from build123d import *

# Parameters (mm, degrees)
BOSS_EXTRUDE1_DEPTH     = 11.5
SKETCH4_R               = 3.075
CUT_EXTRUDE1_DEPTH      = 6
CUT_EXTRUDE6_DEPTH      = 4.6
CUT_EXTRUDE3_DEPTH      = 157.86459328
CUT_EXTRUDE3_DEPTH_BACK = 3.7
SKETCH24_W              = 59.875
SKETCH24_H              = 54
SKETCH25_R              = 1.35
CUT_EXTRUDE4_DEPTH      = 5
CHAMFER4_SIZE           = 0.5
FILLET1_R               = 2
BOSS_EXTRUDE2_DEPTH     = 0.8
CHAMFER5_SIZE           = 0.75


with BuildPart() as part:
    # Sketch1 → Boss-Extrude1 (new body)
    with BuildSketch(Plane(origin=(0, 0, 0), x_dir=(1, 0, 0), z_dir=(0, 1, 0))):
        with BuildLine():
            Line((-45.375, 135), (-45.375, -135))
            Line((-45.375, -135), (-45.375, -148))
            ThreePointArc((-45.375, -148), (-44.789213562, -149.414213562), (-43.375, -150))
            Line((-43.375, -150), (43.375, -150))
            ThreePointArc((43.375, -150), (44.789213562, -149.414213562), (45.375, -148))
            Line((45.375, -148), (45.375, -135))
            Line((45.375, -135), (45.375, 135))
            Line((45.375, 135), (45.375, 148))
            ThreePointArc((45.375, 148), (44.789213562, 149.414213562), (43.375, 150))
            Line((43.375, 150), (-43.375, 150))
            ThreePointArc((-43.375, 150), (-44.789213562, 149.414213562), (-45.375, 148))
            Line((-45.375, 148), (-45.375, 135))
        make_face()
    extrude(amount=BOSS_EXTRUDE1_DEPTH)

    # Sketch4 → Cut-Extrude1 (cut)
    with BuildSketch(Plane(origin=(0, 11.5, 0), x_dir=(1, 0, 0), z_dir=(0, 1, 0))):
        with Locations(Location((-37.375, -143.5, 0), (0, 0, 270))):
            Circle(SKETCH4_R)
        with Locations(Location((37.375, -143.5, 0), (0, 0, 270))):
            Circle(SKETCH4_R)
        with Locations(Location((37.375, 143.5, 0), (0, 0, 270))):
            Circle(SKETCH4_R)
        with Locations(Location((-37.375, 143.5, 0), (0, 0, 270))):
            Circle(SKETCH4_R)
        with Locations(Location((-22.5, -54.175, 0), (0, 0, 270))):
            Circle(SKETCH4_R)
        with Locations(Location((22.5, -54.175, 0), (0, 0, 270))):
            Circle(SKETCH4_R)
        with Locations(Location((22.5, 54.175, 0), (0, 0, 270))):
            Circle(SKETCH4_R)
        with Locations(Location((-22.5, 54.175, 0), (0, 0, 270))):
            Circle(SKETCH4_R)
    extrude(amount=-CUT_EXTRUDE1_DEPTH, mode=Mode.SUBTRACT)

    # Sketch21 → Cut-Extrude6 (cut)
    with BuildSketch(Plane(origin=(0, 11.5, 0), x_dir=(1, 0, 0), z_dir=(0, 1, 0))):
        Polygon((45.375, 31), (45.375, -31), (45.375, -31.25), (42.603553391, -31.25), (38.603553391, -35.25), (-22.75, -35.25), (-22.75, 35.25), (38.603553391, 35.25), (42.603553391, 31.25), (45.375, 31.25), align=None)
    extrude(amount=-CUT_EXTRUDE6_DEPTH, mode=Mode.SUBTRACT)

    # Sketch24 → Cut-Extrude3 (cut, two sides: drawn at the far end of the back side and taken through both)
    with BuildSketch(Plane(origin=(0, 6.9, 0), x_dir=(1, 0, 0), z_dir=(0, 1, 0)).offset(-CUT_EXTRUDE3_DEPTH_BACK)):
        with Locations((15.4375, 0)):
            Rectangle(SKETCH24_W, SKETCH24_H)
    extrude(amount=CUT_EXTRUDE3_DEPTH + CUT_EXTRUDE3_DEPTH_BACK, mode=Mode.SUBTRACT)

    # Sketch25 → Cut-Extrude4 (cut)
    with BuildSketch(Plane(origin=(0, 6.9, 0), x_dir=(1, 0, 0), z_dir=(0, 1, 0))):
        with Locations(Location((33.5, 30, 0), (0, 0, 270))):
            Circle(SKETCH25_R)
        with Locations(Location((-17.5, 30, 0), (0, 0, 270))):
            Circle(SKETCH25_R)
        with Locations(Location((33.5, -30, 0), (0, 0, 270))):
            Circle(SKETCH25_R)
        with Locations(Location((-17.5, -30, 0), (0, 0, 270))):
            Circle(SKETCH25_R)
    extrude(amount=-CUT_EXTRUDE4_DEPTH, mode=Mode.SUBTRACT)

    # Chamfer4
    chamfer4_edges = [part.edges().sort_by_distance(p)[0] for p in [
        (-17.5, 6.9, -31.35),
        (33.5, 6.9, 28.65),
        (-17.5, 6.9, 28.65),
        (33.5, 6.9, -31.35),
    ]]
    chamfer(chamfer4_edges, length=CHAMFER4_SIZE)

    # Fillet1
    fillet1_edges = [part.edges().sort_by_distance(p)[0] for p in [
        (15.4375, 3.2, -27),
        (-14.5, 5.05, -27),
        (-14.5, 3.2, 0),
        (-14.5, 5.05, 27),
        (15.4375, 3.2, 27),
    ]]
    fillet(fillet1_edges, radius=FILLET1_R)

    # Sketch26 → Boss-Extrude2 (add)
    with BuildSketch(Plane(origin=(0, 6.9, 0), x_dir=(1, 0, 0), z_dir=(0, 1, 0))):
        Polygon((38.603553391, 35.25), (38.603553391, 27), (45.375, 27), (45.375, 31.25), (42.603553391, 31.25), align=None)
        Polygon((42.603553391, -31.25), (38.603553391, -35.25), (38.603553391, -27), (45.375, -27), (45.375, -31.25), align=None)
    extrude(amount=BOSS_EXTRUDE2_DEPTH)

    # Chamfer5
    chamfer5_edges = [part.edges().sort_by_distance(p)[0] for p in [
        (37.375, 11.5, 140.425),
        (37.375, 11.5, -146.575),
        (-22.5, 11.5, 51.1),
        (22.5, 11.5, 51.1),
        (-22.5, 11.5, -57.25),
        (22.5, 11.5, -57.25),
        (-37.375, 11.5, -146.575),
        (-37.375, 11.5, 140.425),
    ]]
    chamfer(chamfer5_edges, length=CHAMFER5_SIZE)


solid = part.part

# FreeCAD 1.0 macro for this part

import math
import FreeCAD as App
import Part
import Sketcher

V = App.Vector


def edges_at(feature, points):
    """Names of the edges that pass closest to the given points."""
    edges = feature.Shape.Edges
    near = lambda p: min(range(len(edges)), key=lambda i: edges[i].distToShape(Part.Vertex(*p))[0])
    return sorted({f"Edge{near(p) + 1}" for p in points})


def add_polygon(sketch, points):
    """Adds a closed chain of lines whose ends are joined by coincident constraints."""
    first, n = sketch.GeometryCount, len(points)
    for a, b in zip(points, points[1:] + points[:1]):
        sketch.addGeometry(Part.LineSegment(App.Vector(*a, 0), App.Vector(*b, 0)), False)
    for i in range(n):
        sketch.addConstraint(Sketcher.Constraint("Coincident", first + i, 2, first + (i + 1) % n, 1))

doc = App.newDocument("Part")
params = doc.addObject("Spreadsheet::Sheet", "Params")
for row, (alias, value) in enumerate([
    ("sketch1_radius", "2 mm"),
    ("sketch1_height", "296 mm"),
    ("sketch1_width", "86.75 mm"),
    ("pad1_length", "11.5 mm"),
    ("sketch2_diameter", "6.15 mm"),
    ("pocket1_length", "6 mm"),
    ("sketch3_height", "62.5 mm"),
    ("sketch3_height2", "70.5 mm"),
    ("pocket2_length", "4.6 mm"),
    ("sketch4_height", "54 mm"),
    ("pocket3_length", "157.864593 mm"),
    ("pocket3_length2", "3.7 mm"),
    ("sketch5_diameter", "2.7 mm"),
    ("pocket4_length", "5 mm"),
    ("chamfer_size", "0.5 mm"),
    ("fillet_radius", "2 mm"),
    ("sketch6_height", "8.25 mm"),
    ("pad2_length", "0.8 mm"),
    ("chamfer2_size", "0.75 mm"),
], start=1):
    params.set(f"A{row}", alias)
    params.set(f"B{row}", "=" + value)
    params.setAlias(f"B{row}", alias)

body = doc.addObject("PartDesign::Body", "Body")

sketch1 = body.newObject("Sketcher::SketchObject", "Sketch")
sketch1.AttachmentSupport = (doc.getObject("XZ_Plane"), [""])
sketch1.MapMode = "FlatFace"
sketch1.addGeometry(Part.ArcOfCircle(Part.Circle(V(-43.375, 148, 0), V(0, 0, 1), 2), math.radians(90), math.radians(180)), False)
sketch1.addGeometry(Part.LineSegment(V(-43.375, 150, 0), V(43.375, 150, 0)), False)
sketch1.addGeometry(Part.ArcOfCircle(Part.Circle(V(43.375, 148, 0), V(0, 0, 1), 2), math.radians(0), math.radians(90)), False)
sketch1.addGeometry(Part.LineSegment(V(45.375, 148, 0), V(45.375, -148, 0)), False)
sketch1.addGeometry(Part.ArcOfCircle(Part.Circle(V(43.375, -148, 0), V(0, 0, 1), 2), math.radians(-90), math.radians(0)), False)
sketch1.addGeometry(Part.LineSegment(V(43.375, -150, 0), V(-43.375, -150, 0)), False)
sketch1.addGeometry(Part.ArcOfCircle(Part.Circle(V(-43.375, -148, 0), V(0, 0, 1), 2), math.radians(-180), math.radians(-90)), False)
sketch1.addGeometry(Part.LineSegment(V(-45.375, -148, 0), V(-45.375, 148, 0)), False)
sketch1.addConstraint(Sketcher.Constraint("Tangent", 0, 1, 1, 1))
sketch1.addConstraint(Sketcher.Constraint("Tangent", 1, 2, 2, 2))
sketch1.addConstraint(Sketcher.Constraint("Tangent", 2, 1, 3, 1))
sketch1.addConstraint(Sketcher.Constraint("Tangent", 3, 2, 4, 2))
sketch1.addConstraint(Sketcher.Constraint("Tangent", 4, 1, 5, 1))
sketch1.addConstraint(Sketcher.Constraint("Tangent", 5, 2, 6, 2))
sketch1.addConstraint(Sketcher.Constraint("Tangent", 6, 1, 7, 1))
sketch1.addConstraint(Sketcher.Constraint("Tangent", 7, 2, 0, 2))
sketch1.addConstraint(Sketcher.Constraint("Horizontal", 1))
sketch1.addConstraint(Sketcher.Constraint("Vertical", 3))
sketch1.addConstraint(Sketcher.Constraint("Horizontal", 5))
sketch1.addConstraint(Sketcher.Constraint("Vertical", 7))
sketch1.addConstraint(Sketcher.Constraint("Equal", 0, 2))
sketch1.addConstraint(Sketcher.Constraint("Equal", 2, 4))
sketch1.addConstraint(Sketcher.Constraint("Equal", 4, 6))
sketch1.addConstraint(Sketcher.Constraint("Symmetric", 0, 3, 4, 3, -1, 1))
sketch1.addConstraint(Sketcher.Constraint("Radius", 0, 2.0))
sketch1.addConstraint(Sketcher.Constraint("DistanceY", 3, 2, 3, 1, 296.0))
sketch1.addConstraint(Sketcher.Constraint("DistanceX", 1, 1, 1, 2, 86.75))
sketch1.setExpression("Constraints[16]", "Params.sketch1_radius")
sketch1.setExpression("Constraints[17]", "Params.sketch1_height")
sketch1.setExpression("Constraints[18]", "Params.sketch1_width")
pad1 = body.newObject("PartDesign::Pad", "Pad")
pad1.Profile = sketch1
pad1.setExpression("Length", "Params.pad1_length")
pad1.Reversed = True

sketch2 = body.newObject("Sketcher::SketchObject", "Sketch001")
sketch2.AttachmentSupport = (doc.getObject("XZ_Plane"), [""])
sketch2.MapMode = "FlatFace"
sketch2.AttachmentOffset = App.Placement(V(0, 0, -11.5), App.Rotation())
sketch2.addGeometry(Part.Circle(V(-37.375, 143.5, 0), V(0, 0, 1), 3.075), False)
sketch2.addGeometry(Part.Circle(V(37.375, 143.5, 0), V(0, 0, 1), 3.075), False)
sketch2.addGeometry(Part.Circle(V(37.375, -143.5, 0), V(0, 0, 1), 3.075), False)
sketch2.addGeometry(Part.Circle(V(-37.375, -143.5, 0), V(0, 0, 1), 3.075), False)
sketch2.addGeometry(Part.Circle(V(-22.5, 54.175, 0), V(0, 0, 1), 3.075), False)
sketch2.addGeometry(Part.Circle(V(22.5, 54.175, 0), V(0, 0, 1), 3.075), False)
sketch2.addGeometry(Part.Circle(V(22.5, -54.175, 0), V(0, 0, 1), 3.075), False)
sketch2.addGeometry(Part.Circle(V(-22.5, -54.175, 0), V(0, 0, 1), 3.075), False)
sketch2.addConstraint(Sketcher.Constraint("Equal", 0, 1))
sketch2.addConstraint(Sketcher.Constraint("Equal", 1, 2))
sketch2.addConstraint(Sketcher.Constraint("Equal", 2, 3))
sketch2.addConstraint(Sketcher.Constraint("Equal", 3, 4))
sketch2.addConstraint(Sketcher.Constraint("Equal", 4, 5))
sketch2.addConstraint(Sketcher.Constraint("Equal", 5, 6))
sketch2.addConstraint(Sketcher.Constraint("Equal", 6, 7))
sketch2.addConstraint(Sketcher.Constraint("Symmetric", 0, 3, 2, 3, -1, 1))
sketch2.addConstraint(Sketcher.Constraint("Symmetric", 1, 3, 3, 3, -1, 1))
sketch2.addConstraint(Sketcher.Constraint("Symmetric", 4, 3, 6, 3, -1, 1))
sketch2.addConstraint(Sketcher.Constraint("Symmetric", 5, 3, 7, 3, -1, 1))
sketch2.addConstraint(Sketcher.Constraint("Symmetric", 0, 3, 1, 3, -2))
sketch2.addConstraint(Sketcher.Constraint("Symmetric", 4, 3, 5, 3, -2))
sketch2.addConstraint(Sketcher.Constraint("Diameter", 0, 6.15))
sketch2.addConstraint(Sketcher.Constraint("DistanceY", 2, 3, 1, 3, 287.0))
sketch2.addConstraint(Sketcher.Constraint("DistanceX", 4, 3, 5, 3, 45.0))
sketch2.addConstraint(Sketcher.Constraint("DistanceX", 0, 3, 1, 3, 74.75))
sketch2.addConstraint(Sketcher.Constraint("DistanceY", 6, 3, 5, 3, 108.35))
sketch2.setExpression("Constraints[13]", "Params.sketch2_diameter")
pocket1 = body.newObject("PartDesign::Pocket", "Pocket")
pocket1.Profile = sketch2
pocket1.setExpression("Length", "Params.pocket1_length")
pocket1.Reversed = True

sketch3 = body.newObject("Sketcher::SketchObject", "Sketch002")
sketch3.AttachmentSupport = (doc.getObject("XZ_Plane"), [""])
sketch3.MapMode = "FlatFace"
sketch3.AttachmentOffset = App.Placement(V(0, 0, -11.5), App.Rotation())
add_polygon(sketch3, [(45.375, 31.25), (45.375, -31.25), (42.603553, -31.25), (38.603553, -35.25), (-22.75, -35.25), (-22.75, 35.25), (38.603553, 35.25), (42.603553, 31.25)])
sketch3.addConstraint(Sketcher.Constraint("Vertical", 0))
sketch3.addConstraint(Sketcher.Constraint("Horizontal", 1))
sketch3.addConstraint(Sketcher.Constraint("Horizontal", 3))
sketch3.addConstraint(Sketcher.Constraint("Vertical", 4))
sketch3.addConstraint(Sketcher.Constraint("Horizontal", 5))
sketch3.addConstraint(Sketcher.Constraint("Horizontal", 7))
sketch3.addConstraint(Sketcher.Constraint("Symmetric", 2, 2, 5, 2, -1))
sketch3.addConstraint(Sketcher.Constraint("Symmetric", 1, 2, 6, 2, -1))
sketch3.addConstraint(Sketcher.Constraint("Perpendicular", 2, 6))
sketch3.addConstraint(Sketcher.Constraint("DistanceY", 0, 2, 0, 1, 62.5))
sketch3.addConstraint(Sketcher.Constraint("DistanceY", 4, 1, 4, 2, 70.5))
sketch3.addConstraint(Sketcher.Constraint("DistanceX", 3, 2, -1, 1, 22.75))
sketch3.addConstraint(Sketcher.Constraint("DistanceX", -1, 1, 0, 2, 45.375))
sketch3.addConstraint(Sketcher.Constraint("DistanceX", 1, 2, 1, 1, 2.771447))
sketch3.setExpression("Constraints[17]", "Params.sketch3_height")
sketch3.setExpression("Constraints[18]", "Params.sketch3_height2")
pocket2 = body.newObject("PartDesign::Pocket", "Pocket001")
pocket2.Profile = sketch3
pocket2.setExpression("Length", "Params.pocket2_length")
pocket2.Reversed = True

sketch4 = body.newObject("Sketcher::SketchObject", "Sketch003")
sketch4.AttachmentSupport = (doc.getObject("XZ_Plane"), [""])
sketch4.MapMode = "FlatFace"
sketch4.AttachmentOffset = App.Placement(V(0, 0, -6.9), App.Rotation())
add_polygon(sketch4, [(-14.5, -27), (-14.5, 27), (45.375, 27), (45.375, -27)])
sketch4.addConstraint(Sketcher.Constraint("Vertical", 0))
sketch4.addConstraint(Sketcher.Constraint("Horizontal", 1))
sketch4.addConstraint(Sketcher.Constraint("Vertical", 2))
sketch4.addConstraint(Sketcher.Constraint("Horizontal", 3))
sketch4.addConstraint(Sketcher.Constraint("DistanceY", 0, 1, 0, 2, 54.0))
sketch4.addConstraint(Sketcher.Constraint("DistanceY", -1, 1, 0, 2, 27.0))
sketch4.addConstraint(Sketcher.Constraint("DistanceX", 0, 2, -1, 1, 14.5))
sketch4.addConstraint(Sketcher.Constraint("DistanceX", 1, 1, 1, 2, 59.875))
sketch4.setExpression("Constraints[8]", "Params.sketch4_height")
pocket3 = body.newObject("PartDesign::Pocket", "Pocket002")
pocket3.Profile = sketch4
pocket3.Type = "TwoLengths"
pocket3.setExpression("Length", "Params.pocket3_length")
pocket3.setExpression("Length2", "Params.pocket3_length2")

sketch5 = body.newObject("Sketcher::SketchObject", "Sketch004")
sketch5.AttachmentSupport = (doc.getObject("XZ_Plane"), [""])
sketch5.MapMode = "FlatFace"
sketch5.AttachmentOffset = App.Placement(V(0, 0, -6.9), App.Rotation())
sketch5.addGeometry(Part.Circle(V(33.5, -30, 0), V(0, 0, 1), 1.35), False)
sketch5.addGeometry(Part.Circle(V(-17.5, -30, 0), V(0, 0, 1), 1.35), False)
sketch5.addGeometry(Part.Circle(V(33.5, 30, 0), V(0, 0, 1), 1.35), False)
sketch5.addGeometry(Part.Circle(V(-17.5, 30, 0), V(0, 0, 1), 1.35), False)
sketch5.addConstraint(Sketcher.Constraint("Equal", 0, 1))
sketch5.addConstraint(Sketcher.Constraint("Equal", 1, 2))
sketch5.addConstraint(Sketcher.Constraint("Equal", 2, 3))
sketch5.addConstraint(Sketcher.Constraint("Symmetric", 0, 3, 2, 3, -1))
sketch5.addConstraint(Sketcher.Constraint("Symmetric", 1, 3, 3, 3, -1))
sketch5.addConstraint(Sketcher.Constraint("Horizontal", 0, 3, 1, 3))
sketch5.addConstraint(Sketcher.Constraint("Diameter", 0, 2.7))
sketch5.addConstraint(Sketcher.Constraint("DistanceY", 0, 3, -1, 1, 30.0))
sketch5.addConstraint(Sketcher.Constraint("DistanceX", 1, 3, 0, 3, 51.0))
sketch5.addConstraint(Sketcher.Constraint("DistanceX", -1, 1, 0, 3, 33.5))
sketch5.setExpression("Constraints[6]", "Params.sketch5_diameter")
pocket4 = body.newObject("PartDesign::Pocket", "Pocket003")
pocket4.Profile = sketch5
pocket4.setExpression("Length", "Params.pocket4_length")
pocket4.Reversed = True
doc.recompute()

chamfer = body.newObject("PartDesign::Chamfer", "Chamfer")
chamfer.Base = (pocket4, edges_at(pocket4, [
    (-17.5, 6.9, -31.35),
    (33.5, 6.9, 28.65),
    (-17.5, 6.9, 28.65),
    (33.5, 6.9, -31.35),
]))
chamfer.setExpression("Size", "Params.chamfer_size")
doc.recompute()

fillet = body.newObject("PartDesign::Fillet", "Fillet")
fillet.Base = (chamfer, edges_at(chamfer, [
    (15.438, 3.2, -27),
    (-14.5, 5.05, -27),
    (-14.5, 3.2, 0),
    (-14.5, 5.05, 27),
    (15.438, 3.2, 27),
]))
fillet.setExpression("Radius", "Params.fillet_radius")

sketch6 = body.newObject("Sketcher::SketchObject", "Sketch005")
sketch6.AttachmentSupport = (doc.getObject("XZ_Plane"), [""])
sketch6.MapMode = "FlatFace"
sketch6.AttachmentOffset = App.Placement(V(0, 0, -6.9), App.Rotation())
add_polygon(sketch6, [(38.603553, -35.25), (38.603553, -27), (45.375, -27), (45.375, -31.25), (42.603553, -31.25)])
add_polygon(sketch6, [(38.603553, 35.25), (42.603553, 31.25), (45.375, 31.25), (45.375, 27), (38.603553, 27)])
sketch6.addConstraint(Sketcher.Constraint("Vertical", 0))
sketch6.addConstraint(Sketcher.Constraint("Horizontal", 1))
sketch6.addConstraint(Sketcher.Constraint("Vertical", 2))
sketch6.addConstraint(Sketcher.Constraint("Horizontal", 3))
sketch6.addConstraint(Sketcher.Constraint("Horizontal", 6))
sketch6.addConstraint(Sketcher.Constraint("Vertical", 7))
sketch6.addConstraint(Sketcher.Constraint("Horizontal", 8))
sketch6.addConstraint(Sketcher.Constraint("Vertical", 9))
sketch6.addConstraint(Sketcher.Constraint("Symmetric", 3, 2, 5, 2, -1))
sketch6.addConstraint(Sketcher.Constraint("Symmetric", 1, 2, 7, 2, -1))
sketch6.addConstraint(Sketcher.Constraint("Symmetric", 4, 2, 9, 2, -1))
sketch6.addConstraint(Sketcher.Constraint("Perpendicular", 4, 5))
sketch6.addConstraint(Sketcher.Constraint("DistanceY", 0, 2, -1, 1, 27.0))
sketch6.addConstraint(Sketcher.Constraint("DistanceX", 0, 2, 3, 2, 4.0))
sketch6.addConstraint(Sketcher.Constraint("DistanceY", 0, 1, 0, 2, 8.25))
sketch6.addConstraint(Sketcher.Constraint("DistanceX", -1, 1, 1, 2, 45.375))
sketch6.addConstraint(Sketcher.Constraint("DistanceX", 1, 1, 1, 2, 6.771447))
sketch6.setExpression("Constraints[24]", "Params.sketch6_height")
pad2 = body.newObject("PartDesign::Pad", "Pad001")
pad2.Profile = sketch6
pad2.setExpression("Length", "Params.pad2_length")
pad2.Reversed = True
doc.recompute()

chamfer2 = body.newObject("PartDesign::Chamfer", "Chamfer001")
chamfer2.Base = (pad2, edges_at(pad2, [
    (37.375, 11.5, 140.425),
    (37.375, 11.5, -146.575),
    (-22.5, 11.5, 51.1),
    (22.5, 11.5, 51.1),
    (-22.5, 11.5, -57.25),
    (22.5, 11.5, -57.25),
    (-37.375, 11.5, -146.575),
    (-37.375, 11.5, 140.425),
]))
chamfer2.setExpression("Size", "Params.chamfer2_size")

doc.recompute()
